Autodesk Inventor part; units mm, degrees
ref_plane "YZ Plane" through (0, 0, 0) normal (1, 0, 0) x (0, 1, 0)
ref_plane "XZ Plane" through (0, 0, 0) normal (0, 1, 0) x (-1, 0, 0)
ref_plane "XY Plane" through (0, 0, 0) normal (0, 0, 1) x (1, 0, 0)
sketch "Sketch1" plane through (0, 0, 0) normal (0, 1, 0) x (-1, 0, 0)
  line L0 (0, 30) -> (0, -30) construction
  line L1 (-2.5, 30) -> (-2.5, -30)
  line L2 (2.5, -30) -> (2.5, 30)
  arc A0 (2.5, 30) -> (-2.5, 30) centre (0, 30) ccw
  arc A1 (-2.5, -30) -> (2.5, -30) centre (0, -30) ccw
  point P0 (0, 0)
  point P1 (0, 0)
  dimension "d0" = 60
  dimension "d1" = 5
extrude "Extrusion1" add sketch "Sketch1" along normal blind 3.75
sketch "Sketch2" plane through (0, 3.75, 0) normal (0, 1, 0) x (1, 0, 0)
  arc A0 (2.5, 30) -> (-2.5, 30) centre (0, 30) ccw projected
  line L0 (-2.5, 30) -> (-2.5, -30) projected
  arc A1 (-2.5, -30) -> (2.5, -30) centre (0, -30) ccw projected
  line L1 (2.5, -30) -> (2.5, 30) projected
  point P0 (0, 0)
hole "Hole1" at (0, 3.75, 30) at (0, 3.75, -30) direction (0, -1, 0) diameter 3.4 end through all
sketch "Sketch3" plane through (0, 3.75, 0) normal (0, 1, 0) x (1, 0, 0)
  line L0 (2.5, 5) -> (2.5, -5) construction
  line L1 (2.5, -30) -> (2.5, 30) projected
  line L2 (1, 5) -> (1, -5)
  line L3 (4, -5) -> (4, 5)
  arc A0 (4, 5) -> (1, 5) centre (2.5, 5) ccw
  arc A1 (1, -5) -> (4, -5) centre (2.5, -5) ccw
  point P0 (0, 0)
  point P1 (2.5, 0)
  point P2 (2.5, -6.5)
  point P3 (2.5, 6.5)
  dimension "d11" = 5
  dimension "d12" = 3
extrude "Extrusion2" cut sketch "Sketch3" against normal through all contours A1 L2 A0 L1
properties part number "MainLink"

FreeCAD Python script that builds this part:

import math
import FreeCAD as App
import Part
import Sketcher

V = App.Vector

doc = App.newDocument("Part")
body = doc.addObject("PartDesign::Body", "Body")

# Sketch on XZ plane
sketch1 = body.newObject("Sketcher::SketchObject", "Sketch")
sketch1.AttachmentSupport = (doc.getObject("XZ_Plane"), [""])
sketch1.MapMode = "FlatFace"
sketch1.addGeometry([
    Part.ArcOfCircle(Part.Circle(V(0, 30, 0), V(0, 0, 1), 2.5), math.radians(0), math.radians(180)),
    Part.LineSegment(V(2.5, 30, 0), V(2.5, -30, 0)),
    Part.ArcOfCircle(Part.Circle(V(0, -30, 0), V(0, 0, 1), 2.5), math.radians(180), math.radians(360)),
    Part.LineSegment(V(-2.5, -30, 0), V(-2.5, 30, 0)),
], False)
sketch1.addConstraint([
    Sketcher.Constraint("Tangent", 0, 1, 1, 1),
    Sketcher.Constraint("Tangent", 1, 2, 2, 2),
    Sketcher.Constraint("Tangent", 2, 1, 3, 1),
    Sketcher.Constraint("Tangent", 3, 2, 0, 2),
    Sketcher.Constraint("Vertical", 1),
    Sketcher.Constraint("Vertical", 3),
    Sketcher.Constraint("Symmetric", 0, 3, 2, 3, -1, 1),
    Sketcher.Constraint("Radius", 0, 2.5),
    Sketcher.Constraint("DistanceY", 1, 2, 1, 1, 60.0),
])
pad1 = body.newObject("PartDesign::Pad", "Pad")
pad1.Profile = sketch1
pad1.Length = 3.75
pad1.Reversed = True

# Sketch on XZ plane
sketch2 = body.newObject("Sketcher::SketchObject", "Sketch001")
sketch2.AttachmentSupport = (doc.getObject("XZ_Plane"), [""])
sketch2.MapMode = "FlatFace"
sketch2.AttachmentOffset = App.Placement(V(0, 0, -3.75), App.Rotation())
sketch2.addGeometry([
    Part.Circle(V(0, 30, 0), V(0, 0, 1), 1.7),
    Part.Circle(V(0, -30, 0), V(0, 0, 1), 1.7),
], False)
sketch2.addConstraint([
    Sketcher.Constraint("Equal", 0, 1),
    Sketcher.Constraint("Symmetric", 0, 3, 1, 3, -1, 1),
    Sketcher.Constraint("PointOnObject", 0, 3, -2),
    Sketcher.Constraint("Diameter", 0, 3.4),
    Sketcher.Constraint("DistanceY", -1, 1, 0, 3, 30.0),
])
doc.recompute()
hole = body.newObject("PartDesign::Hole", "Hole")
hole.Profile = sketch2
hole.ThreadType = "None"
hole.Diameter = 3.4
hole.DepthType = "ThroughAll"
hole.Reversed = True

# Sketch on XZ plane
sketch3 = body.newObject("Sketcher::SketchObject", "Sketch002")
sketch3.AttachmentSupport = (doc.getObject("XZ_Plane"), [""])
sketch3.MapMode = "FlatFace"
sketch3.AttachmentOffset = App.Placement(V(0, 0, -3.75), App.Rotation())
sketch3.addGeometry([
    Part.ArcOfCircle(Part.Circle(V(2.5, 5, 0), V(0, 0, 1), 1.5), math.radians(90), math.radians(180)),
    Part.LineSegment(V(2.5, 6.5, 0), V(2.5, -6.5, 0)),
    Part.ArcOfCircle(Part.Circle(V(2.5, -5, 0), V(0, 0, 1), 1.5), math.radians(180), math.radians(270)),
    Part.LineSegment(V(1, -5, 0), V(1, 5, 0)),
], False)
sketch3.addConstraint([
    Sketcher.Constraint("Coincident", 0, 1, 1, 1),
    Sketcher.Constraint("Coincident", 1, 2, 2, 2),
    Sketcher.Constraint("Tangent", 2, 1, 3, 1),
    Sketcher.Constraint("Tangent", 3, 2, 0, 2),
    Sketcher.Constraint("Vertical", 1),
    Sketcher.Constraint("Vertical", 3),
    Sketcher.Constraint("Equal", 0, 2),
    Sketcher.Constraint("Vertical", 2, 3, 0, 1),
    Sketcher.Constraint("Radius", 0, 1.5),
    Sketcher.Constraint("DistanceY", -1, 1, 0, 3, 5.0),
    Sketcher.Constraint("DistanceY", 2, 3, -1, 1, 5.0),
    Sketcher.Constraint("DistanceX", -1, 1, 2, 1, 1.0),
])
pocket1 = body.newObject("PartDesign::Pocket", "Pocket")
pocket1.Profile = sketch3
pocket1.Type = "ThroughAll"
pocket1.Reversed = True

doc.recompute()
